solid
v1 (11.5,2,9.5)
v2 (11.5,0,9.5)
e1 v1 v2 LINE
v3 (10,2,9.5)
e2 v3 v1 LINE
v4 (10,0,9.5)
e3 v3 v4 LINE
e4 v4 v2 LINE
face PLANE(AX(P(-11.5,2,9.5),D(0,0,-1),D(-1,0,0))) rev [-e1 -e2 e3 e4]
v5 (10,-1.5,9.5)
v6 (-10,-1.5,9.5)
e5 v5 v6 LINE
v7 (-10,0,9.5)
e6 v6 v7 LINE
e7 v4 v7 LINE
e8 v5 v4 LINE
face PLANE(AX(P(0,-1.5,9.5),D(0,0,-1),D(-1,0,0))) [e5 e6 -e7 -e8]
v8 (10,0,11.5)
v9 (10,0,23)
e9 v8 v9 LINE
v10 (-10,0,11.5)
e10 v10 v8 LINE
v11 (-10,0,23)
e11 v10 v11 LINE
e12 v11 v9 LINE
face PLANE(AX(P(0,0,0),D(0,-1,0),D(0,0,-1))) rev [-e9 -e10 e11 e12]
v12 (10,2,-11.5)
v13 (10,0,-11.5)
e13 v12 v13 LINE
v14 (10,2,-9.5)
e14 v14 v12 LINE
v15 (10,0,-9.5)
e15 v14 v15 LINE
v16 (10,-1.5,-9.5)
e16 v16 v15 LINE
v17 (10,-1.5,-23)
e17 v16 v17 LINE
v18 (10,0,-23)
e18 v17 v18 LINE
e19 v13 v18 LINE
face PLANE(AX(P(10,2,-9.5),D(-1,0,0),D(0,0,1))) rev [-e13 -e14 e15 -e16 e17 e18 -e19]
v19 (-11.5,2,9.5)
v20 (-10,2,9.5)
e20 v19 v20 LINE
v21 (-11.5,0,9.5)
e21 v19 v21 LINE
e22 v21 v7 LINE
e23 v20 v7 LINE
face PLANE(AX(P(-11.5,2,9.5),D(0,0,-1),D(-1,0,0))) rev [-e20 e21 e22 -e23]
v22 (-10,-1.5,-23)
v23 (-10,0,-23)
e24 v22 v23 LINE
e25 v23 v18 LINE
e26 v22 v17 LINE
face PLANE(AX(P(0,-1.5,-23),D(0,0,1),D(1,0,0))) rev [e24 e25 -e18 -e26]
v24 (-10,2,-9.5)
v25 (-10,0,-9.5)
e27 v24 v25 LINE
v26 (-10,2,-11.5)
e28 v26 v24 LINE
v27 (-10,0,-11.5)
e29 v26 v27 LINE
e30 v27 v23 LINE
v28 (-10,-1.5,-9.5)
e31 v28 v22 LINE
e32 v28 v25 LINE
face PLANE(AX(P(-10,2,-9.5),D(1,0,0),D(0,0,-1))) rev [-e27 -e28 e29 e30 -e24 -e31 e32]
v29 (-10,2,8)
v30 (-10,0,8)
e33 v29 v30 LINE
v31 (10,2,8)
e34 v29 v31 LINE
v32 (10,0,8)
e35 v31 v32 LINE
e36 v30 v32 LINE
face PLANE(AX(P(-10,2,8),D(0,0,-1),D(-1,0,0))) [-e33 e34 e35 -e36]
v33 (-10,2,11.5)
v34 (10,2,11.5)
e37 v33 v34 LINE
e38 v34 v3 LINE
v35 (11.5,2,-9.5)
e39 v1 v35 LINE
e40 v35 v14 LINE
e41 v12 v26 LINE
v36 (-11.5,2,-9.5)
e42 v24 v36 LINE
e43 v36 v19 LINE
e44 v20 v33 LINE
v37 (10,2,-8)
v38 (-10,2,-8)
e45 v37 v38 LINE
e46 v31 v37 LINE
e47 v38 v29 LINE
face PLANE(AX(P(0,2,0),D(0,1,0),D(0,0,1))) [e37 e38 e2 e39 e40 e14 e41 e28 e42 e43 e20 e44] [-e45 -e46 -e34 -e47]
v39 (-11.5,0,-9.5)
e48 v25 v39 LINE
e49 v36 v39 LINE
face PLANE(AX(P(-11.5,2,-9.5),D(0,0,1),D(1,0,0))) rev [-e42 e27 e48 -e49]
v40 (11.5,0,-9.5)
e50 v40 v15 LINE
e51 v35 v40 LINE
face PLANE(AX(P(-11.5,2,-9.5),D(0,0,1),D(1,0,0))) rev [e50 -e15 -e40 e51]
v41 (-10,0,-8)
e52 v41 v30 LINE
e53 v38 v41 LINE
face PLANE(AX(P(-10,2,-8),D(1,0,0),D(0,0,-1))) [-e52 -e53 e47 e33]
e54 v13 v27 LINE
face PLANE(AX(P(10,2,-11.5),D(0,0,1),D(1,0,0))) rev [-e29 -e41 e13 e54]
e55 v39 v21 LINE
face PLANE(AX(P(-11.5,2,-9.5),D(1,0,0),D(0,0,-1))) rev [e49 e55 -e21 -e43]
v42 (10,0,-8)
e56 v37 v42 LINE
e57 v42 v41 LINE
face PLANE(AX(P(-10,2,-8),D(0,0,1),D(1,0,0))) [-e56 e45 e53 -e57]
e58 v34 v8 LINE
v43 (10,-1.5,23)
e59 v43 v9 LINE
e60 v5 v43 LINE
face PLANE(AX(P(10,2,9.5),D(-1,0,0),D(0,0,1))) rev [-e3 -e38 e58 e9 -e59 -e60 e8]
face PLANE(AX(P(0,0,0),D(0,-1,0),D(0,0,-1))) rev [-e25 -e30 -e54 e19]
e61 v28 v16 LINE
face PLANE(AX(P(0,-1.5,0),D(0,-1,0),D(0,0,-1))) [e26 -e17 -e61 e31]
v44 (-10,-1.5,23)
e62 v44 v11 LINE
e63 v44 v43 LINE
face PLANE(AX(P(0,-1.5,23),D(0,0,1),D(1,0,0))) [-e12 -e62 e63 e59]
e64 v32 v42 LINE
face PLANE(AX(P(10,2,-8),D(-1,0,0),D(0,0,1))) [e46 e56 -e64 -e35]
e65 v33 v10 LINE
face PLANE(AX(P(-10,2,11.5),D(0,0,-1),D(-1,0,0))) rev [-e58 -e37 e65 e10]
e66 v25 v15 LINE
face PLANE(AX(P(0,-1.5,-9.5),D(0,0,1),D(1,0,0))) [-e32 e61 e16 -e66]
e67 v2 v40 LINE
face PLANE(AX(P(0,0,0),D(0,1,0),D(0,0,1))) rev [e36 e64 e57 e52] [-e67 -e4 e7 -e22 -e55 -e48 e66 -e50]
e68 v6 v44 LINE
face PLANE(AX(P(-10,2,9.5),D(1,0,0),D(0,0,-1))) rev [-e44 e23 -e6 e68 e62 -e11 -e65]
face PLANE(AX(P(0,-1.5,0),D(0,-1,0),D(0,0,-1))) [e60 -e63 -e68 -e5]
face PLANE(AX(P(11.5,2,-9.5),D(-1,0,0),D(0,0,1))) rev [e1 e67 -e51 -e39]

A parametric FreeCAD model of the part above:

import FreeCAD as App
import Part
import Sketcher
Q = App.Units.Quantity

doc = App.newDocument("Part")
params = doc.addObject("Spreadsheet::Sheet", "Params")
for row, (alias, value) in enumerate([
    ("sketch1_width", "23 mm"),
    ("sketch1_width2", "20 mm"),
    ("sketch1_height", "19 mm"),
    ("sketch1_height2", "16 mm"),
    ("pad1_length", "2 mm"),
    ("sketch2_width", "20 mm"),
    ("sketch2_height", "13.5 mm"),
    ("pad2_length", "1.5 mm"),
    ("sketch3_width", "20 mm"),
    ("sketch3_height", "13.5 mm"),
    ("pad3_length", "1.5 mm"),
    ("sketch4_width", "20 mm"),
    ("sketch4_height", "2 mm"),
    ("pad4_length", "2 mm"),
], start=1):
    params.set(f"A{row}", alias)
    params.set(f"B{row}", "=" + value)
    params.setAlias(f"B{row}", alias)

body = doc.addObject("PartDesign::Body", "Body")

# Sketch on XZ plane
sketch1 = body.newObject("Sketcher::SketchObject", "Sketch")
sketch1.AttachmentSupport = (doc.getObject("XZ_Plane"), [""])
sketch1.MapMode = "FlatFace"
sketch1.addGeometry(Part.LineSegment(App.Vector(-12, -10, 0), App.Vector(-12, 10, 0)), False)
sketch1.addGeometry(Part.LineSegment(App.Vector(-12, 10, 0), App.Vector(12, 10, 0)), False)
sketch1.addGeometry(Part.LineSegment(App.Vector(12, 10, 0), App.Vector(12, -10, 0)), False)
sketch1.addGeometry(Part.LineSegment(App.Vector(12, -10, 0), App.Vector(-12, -10, 0)), False)
sketch1.addGeometry(Part.LineSegment(App.Vector(10, 8, 0), App.Vector(-10, 8, 0)), False)
sketch1.addGeometry(Part.LineSegment(App.Vector(-10, 8, 0), App.Vector(-10, -8, 0)), False)
sketch1.addGeometry(Part.LineSegment(App.Vector(-10, -8, 0), App.Vector(10, -8, 0)), False)
sketch1.addGeometry(Part.LineSegment(App.Vector(10, -8, 0), App.Vector(10, 8, 0)), False)
sketch1.addConstraint(Sketcher.Constraint("Coincident", 0, 2, 1, 1))
sketch1.addConstraint(Sketcher.Constraint("Coincident", 1, 2, 2, 1))
sketch1.addConstraint(Sketcher.Constraint("Coincident", 2, 2, 3, 1))
sketch1.addConstraint(Sketcher.Constraint("Coincident", 3, 2, 0, 1))
sketch1.addConstraint(Sketcher.Constraint("Coincident", 4, 2, 5, 1))
sketch1.addConstraint(Sketcher.Constraint("Coincident", 5, 2, 6, 1))
sketch1.addConstraint(Sketcher.Constraint("Coincident", 6, 2, 7, 1))
sketch1.addConstraint(Sketcher.Constraint("Coincident", 7, 2, 4, 1))
sketch1.addConstraint(Sketcher.Constraint("Vertical", 0))
sketch1.addConstraint(Sketcher.Constraint("Horizontal", 1))
sketch1.addConstraint(Sketcher.Constraint("Vertical", 2))
sketch1.addConstraint(Sketcher.Constraint("Horizontal", 3))
sketch1.addConstraint(Sketcher.Constraint("Horizontal", 4))
sketch1.addConstraint(Sketcher.Constraint("Vertical", 5))
sketch1.addConstraint(Sketcher.Constraint("Horizontal", 6))
sketch1.addConstraint(Sketcher.Constraint("Vertical", 7))
sketch1.addConstraint(Sketcher.Constraint("Symmetric", 0, 2, 2, 2, -1, 1))
sketch1.addConstraint(Sketcher.Constraint("Symmetric", 4, 2, 6, 2, -1, 1))
sketch1.addConstraint(Sketcher.Constraint("DistanceX", 1, 1, 1, 2, Q("23 mm")))
sketch1.addConstraint(Sketcher.Constraint("DistanceX", 4, 2, 4, 1, Q("20 mm")))
sketch1.addConstraint(Sketcher.Constraint("DistanceY", 0, 1, 0, 2, Q("19 mm")))
sketch1.addConstraint(Sketcher.Constraint("DistanceY", 5, 2, 5, 1, Q("16 mm")))
sketch1.setExpression("Constraints[18]", "Params.sketch1_width")
sketch1.setExpression("Constraints[19]", "Params.sketch1_width2")
sketch1.setExpression("Constraints[20]", "Params.sketch1_height")
sketch1.setExpression("Constraints[21]", "Params.sketch1_height2")
pad1 = body.newObject("PartDesign::Pad", "Pad")
pad1.Profile = sketch1
pad1.setExpression("Length", "Params.pad1_length")
pad1.Reversed = True
body2 = doc.addObject("PartDesign::Body", "Body001")

# Sketch on XZ plane
sketch2 = body2.newObject("Sketcher::SketchObject", "Sketch001")
sketch2.AttachmentSupport = (doc.getObject("XZ_Plane001"), [""])
sketch2.MapMode = "FlatFace"
sketch2.addGeometry(Part.LineSegment(App.Vector(-10, 23, 0), App.Vector(-10, 10, 0)), False)
sketch2.addGeometry(Part.LineSegment(App.Vector(-10, 10, 0), App.Vector(10, 10, 0)), False)
sketch2.addGeometry(Part.LineSegment(App.Vector(10, 10, 0), App.Vector(10, 23, 0)), False)
sketch2.addGeometry(Part.LineSegment(App.Vector(10, 23, 0), App.Vector(-10, 23, 0)), False)
sketch2.addConstraint(Sketcher.Constraint("Coincident", 0, 2, 1, 1))
sketch2.addConstraint(Sketcher.Constraint("Coincident", 1, 2, 2, 1))
sketch2.addConstraint(Sketcher.Constraint("Coincident", 2, 2, 3, 1))
sketch2.addConstraint(Sketcher.Constraint("Coincident", 3, 2, 0, 1))
sketch2.addConstraint(Sketcher.Constraint("Vertical", 0))
sketch2.addConstraint(Sketcher.Constraint("Horizontal", 1))
sketch2.addConstraint(Sketcher.Constraint("Vertical", 2))
sketch2.addConstraint(Sketcher.Constraint("Horizontal", 3))
sketch2.addConstraint(Sketcher.Constraint("DistanceX", 1, 1, 1, 2, Q("20 mm")))
sketch2.addConstraint(Sketcher.Constraint("DistanceY", 0, 2, 0, 1, Q("13.5 mm")))
sketch2.addConstraint(Sketcher.Constraint("DistanceX", 0, 2, -1, 1, Q("10 mm")))
sketch2.addConstraint(Sketcher.Constraint("DistanceY", -1, 1, 2, 2, Q("23 mm")))
sketch2.setExpression("Constraints[8]", "Params.sketch2_width")
sketch2.setExpression("Constraints[9]", "Params.sketch2_height")
pad2 = body2.newObject("PartDesign::Pad", "Pad001")
pad2.Profile = sketch2
pad2.setExpression("Length", "Params.pad2_length")
body3 = doc.addObject("PartDesign::Body", "Body002")

# Sketch on XZ plane
sketch3 = body3.newObject("Sketcher::SketchObject", "Sketch002")
sketch3.AttachmentSupport = (doc.getObject("XZ_Plane002"), [""])
sketch3.MapMode = "FlatFace"
sketch3.addGeometry(Part.LineSegment(App.Vector(-10, -10, 0), App.Vector(-10, -23, 0)), False)
sketch3.addGeometry(Part.LineSegment(App.Vector(-10, -23, 0), App.Vector(10, -23, 0)), False)
sketch3.addGeometry(Part.LineSegment(App.Vector(10, -23, 0), App.Vector(10, -10, 0)), False)
sketch3.addGeometry(Part.LineSegment(App.Vector(10, -10, 0), App.Vector(-10, -10, 0)), False)
sketch3.addConstraint(Sketcher.Constraint("Coincident", 0, 2, 1, 1))
sketch3.addConstraint(Sketcher.Constraint("Coincident", 1, 2, 2, 1))
sketch3.addConstraint(Sketcher.Constraint("Coincident", 2, 2, 3, 1))
sketch3.addConstraint(Sketcher.Constraint("Coincident", 3, 2, 0, 1))
sketch3.addConstraint(Sketcher.Constraint("Vertical", 0))
sketch3.addConstraint(Sketcher.Constraint("Horizontal", 1))
sketch3.addConstraint(Sketcher.Constraint("Vertical", 2))
sketch3.addConstraint(Sketcher.Constraint("Horizontal", 3))
sketch3.addConstraint(Sketcher.Constraint("DistanceX", 1, 1, 1, 2, Q("20 mm")))
sketch3.addConstraint(Sketcher.Constraint("DistanceY", 0, 2, 0, 1, Q("13.5 mm")))
sketch3.addConstraint(Sketcher.Constraint("DistanceX", 0, 2, -1, 1, Q("10 mm")))
sketch3.addConstraint(Sketcher.Constraint("DistanceY", 0, 2, -1, 1, Q("23 mm")))
sketch3.setExpression("Constraints[8]", "Params.sketch3_width")
sketch3.setExpression("Constraints[9]", "Params.sketch3_height")
pad3 = body3.newObject("PartDesign::Pad", "Pad002")
pad3.Profile = sketch3
pad3.setExpression("Length", "Params.pad3_length")
body.AllowCompound = True
doc.recompute()

boolean = body.newObject("PartDesign::Boolean", "Boolean")
boolean.Type = "Fuse"
boolean.addObjects([body2])
doc.recompute()

boolean2 = body.newObject("PartDesign::Boolean", "Boolean001")
boolean2.Type = "Fuse"
boolean2.addObjects([body3])

# Sketch on XZ plane
sketch4 = body.newObject("Sketcher::SketchObject", "Sketch003")
sketch4.AttachmentSupport = (doc.getObject("XZ_Plane"), [""])
sketch4.MapMode = "FlatFace"
sketch4.addGeometry(Part.LineSegment(App.Vector(-10, -11.5, 0), App.Vector(-10, -9.5, 0)), False)
sketch4.addGeometry(Part.LineSegment(App.Vector(-10, -9.5, 0), App.Vector(10, -9.5, 0)), False)
sketch4.addGeometry(Part.LineSegment(App.Vector(10, -9.5, 0), App.Vector(10, -11.5, 0)), False)
sketch4.addGeometry(Part.LineSegment(App.Vector(10, -11.5, 0), App.Vector(-10, -11.5, 0)), False)
sketch4.addGeometry(Part.LineSegment(App.Vector(-10, 9.5, 0), App.Vector(-10, 11.5, 0)), False)
sketch4.addGeometry(Part.LineSegment(App.Vector(-10, 11.5, 0), App.Vector(10, 11.5, 0)), False)
sketch4.addGeometry(Part.LineSegment(App.Vector(10, 11.5, 0), App.Vector(10, 9.5, 0)), False)
sketch4.addGeometry(Part.LineSegment(App.Vector(10, 9.5, 0), App.Vector(-10, 9.5, 0)), False)
sketch4.addConstraint(Sketcher.Constraint("Coincident", 0, 2, 1, 1))
sketch4.addConstraint(Sketcher.Constraint("Coincident", 1, 2, 2, 1))
sketch4.addConstraint(Sketcher.Constraint("Coincident", 2, 2, 3, 1))
sketch4.addConstraint(Sketcher.Constraint("Coincident", 3, 2, 0, 1))
sketch4.addConstraint(Sketcher.Constraint("Coincident", 4, 2, 5, 1))
sketch4.addConstraint(Sketcher.Constraint("Coincident", 5, 2, 6, 1))
sketch4.addConstraint(Sketcher.Constraint("Coincident", 6, 2, 7, 1))
sketch4.addConstraint(Sketcher.Constraint("Coincident", 7, 2, 4, 1))
sketch4.addConstraint(Sketcher.Constraint("Vertical", 0))
sketch4.addConstraint(Sketcher.Constraint("Horizontal", 1))
sketch4.addConstraint(Sketcher.Constraint("Vertical", 2))
sketch4.addConstraint(Sketcher.Constraint("Horizontal", 3))
sketch4.addConstraint(Sketcher.Constraint("Vertical", 4))
sketch4.addConstraint(Sketcher.Constraint("Horizontal", 5))
sketch4.addConstraint(Sketcher.Constraint("Vertical", 6))
sketch4.addConstraint(Sketcher.Constraint("Horizontal", 7))
sketch4.addConstraint(Sketcher.Constraint("Symmetric", 2, 2, 4, 2, -1, 1))
sketch4.addConstraint(Sketcher.Constraint("Symmetric", 0, 2, 6, 2, -1, 1))
sketch4.addConstraint(Sketcher.Constraint("Vertical", 3, 2, 4, 2))
sketch4.addConstraint(Sketcher.Constraint("DistanceX", 1, 1, 1, 2, Q("20 mm")))
sketch4.addConstraint(Sketcher.Constraint("DistanceY", 0, 1, 0, 2, Q("2 mm")))
sketch4.addConstraint(Sketcher.Constraint("DistanceY", 0, 2, 4, 2, Q("21 mm")))
sketch4.setExpression("Constraints[19]", "Params.sketch4_width")
sketch4.setExpression("Constraints[20]", "Params.sketch4_height")
pad4 = body.newObject("PartDesign::Pad", "Pad003")
pad4.Profile = sketch4
pad4.setExpression("Length", "Params.pad4_length")
pad4.Reversed = True

doc.recompute()
